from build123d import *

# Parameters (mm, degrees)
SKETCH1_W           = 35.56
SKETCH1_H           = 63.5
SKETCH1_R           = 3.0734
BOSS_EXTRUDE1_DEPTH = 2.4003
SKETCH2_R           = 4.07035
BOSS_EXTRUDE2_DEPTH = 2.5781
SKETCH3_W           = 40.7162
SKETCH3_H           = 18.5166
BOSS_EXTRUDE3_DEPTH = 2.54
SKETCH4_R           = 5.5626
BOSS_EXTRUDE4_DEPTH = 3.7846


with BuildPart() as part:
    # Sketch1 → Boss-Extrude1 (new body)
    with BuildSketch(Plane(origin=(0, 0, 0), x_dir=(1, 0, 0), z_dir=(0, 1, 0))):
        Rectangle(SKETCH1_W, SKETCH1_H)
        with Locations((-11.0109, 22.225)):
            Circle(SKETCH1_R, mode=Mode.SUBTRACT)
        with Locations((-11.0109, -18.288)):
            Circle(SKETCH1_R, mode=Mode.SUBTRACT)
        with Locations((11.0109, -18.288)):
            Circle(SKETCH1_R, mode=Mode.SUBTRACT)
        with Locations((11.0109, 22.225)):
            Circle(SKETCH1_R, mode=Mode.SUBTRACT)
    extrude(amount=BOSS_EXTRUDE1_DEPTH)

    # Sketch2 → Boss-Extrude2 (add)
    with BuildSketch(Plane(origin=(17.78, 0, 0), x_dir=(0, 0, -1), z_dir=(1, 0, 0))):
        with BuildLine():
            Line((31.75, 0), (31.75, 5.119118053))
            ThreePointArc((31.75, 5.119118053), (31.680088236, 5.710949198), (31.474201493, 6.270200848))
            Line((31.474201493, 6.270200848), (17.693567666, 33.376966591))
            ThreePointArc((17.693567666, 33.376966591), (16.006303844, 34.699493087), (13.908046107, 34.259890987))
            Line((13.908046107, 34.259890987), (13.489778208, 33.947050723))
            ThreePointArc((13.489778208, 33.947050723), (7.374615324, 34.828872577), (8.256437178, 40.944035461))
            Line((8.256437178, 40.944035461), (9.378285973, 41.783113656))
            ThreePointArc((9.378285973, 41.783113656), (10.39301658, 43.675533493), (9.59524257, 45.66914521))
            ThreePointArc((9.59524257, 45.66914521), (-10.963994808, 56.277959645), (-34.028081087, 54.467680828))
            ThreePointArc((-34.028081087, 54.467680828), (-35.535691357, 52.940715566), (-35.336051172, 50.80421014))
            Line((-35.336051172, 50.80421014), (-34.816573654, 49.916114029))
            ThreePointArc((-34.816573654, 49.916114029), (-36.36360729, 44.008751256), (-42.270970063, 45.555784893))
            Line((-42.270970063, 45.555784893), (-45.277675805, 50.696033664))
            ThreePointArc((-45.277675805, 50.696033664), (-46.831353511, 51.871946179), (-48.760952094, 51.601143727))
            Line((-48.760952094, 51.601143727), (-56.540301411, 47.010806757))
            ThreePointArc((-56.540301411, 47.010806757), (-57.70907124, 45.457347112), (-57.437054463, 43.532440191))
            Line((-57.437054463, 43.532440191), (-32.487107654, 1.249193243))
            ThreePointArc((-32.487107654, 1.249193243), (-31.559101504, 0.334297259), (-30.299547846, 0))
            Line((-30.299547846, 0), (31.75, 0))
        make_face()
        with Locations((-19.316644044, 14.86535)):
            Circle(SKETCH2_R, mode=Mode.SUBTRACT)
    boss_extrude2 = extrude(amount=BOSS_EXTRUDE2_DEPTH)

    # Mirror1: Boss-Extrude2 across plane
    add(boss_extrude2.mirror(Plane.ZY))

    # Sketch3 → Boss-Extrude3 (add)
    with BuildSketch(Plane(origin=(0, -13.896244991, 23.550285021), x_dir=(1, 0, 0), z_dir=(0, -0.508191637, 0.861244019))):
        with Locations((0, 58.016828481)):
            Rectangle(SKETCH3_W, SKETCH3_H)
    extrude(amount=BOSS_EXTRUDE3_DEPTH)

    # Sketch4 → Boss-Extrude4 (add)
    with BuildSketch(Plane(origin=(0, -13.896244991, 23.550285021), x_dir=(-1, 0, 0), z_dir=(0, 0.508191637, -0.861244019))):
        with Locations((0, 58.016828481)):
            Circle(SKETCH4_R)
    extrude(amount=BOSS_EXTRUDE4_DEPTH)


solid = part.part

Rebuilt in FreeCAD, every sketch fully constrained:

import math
import FreeCAD as App
import Part
import Sketcher

V = App.Vector
Q = App.Units.Quantity


def add_polygon(sketch, points):
    """Adds a closed chain of lines whose ends are joined by coincident constraints."""
    first, n = sketch.GeometryCount, len(points)
    for a, b in zip(points, points[1:] + points[:1]):
        sketch.addGeometry(Part.LineSegment(App.Vector(*a, 0), App.Vector(*b, 0)), False)
    for i in range(n):
        sketch.addConstraint(Sketcher.Constraint("Coincident", first + i, 2, first + (i + 1) % n, 1))

doc = App.newDocument("Part")
params = doc.addObject("Spreadsheet::Sheet", "Params")
for row, (alias, value) in enumerate([
    ("sketch1_diameter", "0.242 in"),
    ("sketch1_width", "1.4 in"),
    ("sketch1_height", "2.5 in"),
    ("pad1_length", "0.0945 in"),
    ("sketch2_radius", "0.1 in"),
    ("sketch2_radius2", "0.1 in"),
    ("sketch2_radius3", "0.1 in"),
    ("sketch2_radius4", "0.1 in"),
    ("sketch2_radius5", "0.1 in"),
    ("pad2_length", "0.1015 in"),
    ("sketch3_width", "1.603 in"),
    ("sketch3_height", "0.729 in"),
    ("pad3_length", "0.1 in"),
    ("sketch4_diameter", "0.438 in"),
    ("pad4_length", "0.149 in"),
], start=1):
    params.set(f"A{row}", alias)
    params.set(f"B{row}", "=" + value)
    params.setAlias(f"B{row}", alias)

body = doc.addObject("PartDesign::Body", "Body")

# Sketch on XZ plane
sketch1 = doc.addObject("Sketcher::SketchObject", "Sketch")
body.addObject(sketch1)
sketch1.AttachmentSupport = (doc.XZ_Plane, [""])
sketch1.MapMode = "FlatFace"
add_polygon(sketch1, [(-17.8, -31.8), (-17.8, 31.8), (17.8, 31.8), (17.8, -31.8)])  # lines 0-3
sketch1.addGeometry(Part.Circle(V(-11, 18.3, 0), V(0, 0, 1), 3.1), False)  # 4
sketch1.addGeometry(Part.Circle(V(11, 18.3, 0), V(0, 0, 1), 3.1), False)  # 5
sketch1.addGeometry(Part.Circle(V(-11, -22.2, 0), V(0, 0, 1), 3.1), False)  # 6
sketch1.addGeometry(Part.Circle(V(11, -22.2, 0), V(0, 0, 1), 3.1), False)  # 7
sketch1.addConstraint([
    Sketcher.Constraint("Vertical", 0),
    Sketcher.Constraint("Horizontal", 1),
    Sketcher.Constraint("Vertical", 2),
    Sketcher.Constraint("Horizontal", 3),
    Sketcher.Constraint("Equal", 4, 5),
    Sketcher.Constraint("Equal", 5, 6),
    Sketcher.Constraint("Equal", 6, 7),
    Sketcher.Constraint("Symmetric", 0, 2, 2, 2, -1, 1),
    Sketcher.Constraint("Symmetric", 4, 3, 5, 3, -2),
    Sketcher.Constraint("Symmetric", 6, 3, 7, 3, -2),
    Sketcher.Constraint("Vertical", 4, 3, 6, 3),
    Sketcher.Constraint("Diameter", 4, Q("0.242 in")),
    Sketcher.Constraint("DistanceX", 1, 1, 1, 2, Q("1.4 in")),
    Sketcher.Constraint("DistanceY", 0, 1, 0, 2, Q("2.5 in")),
    Sketcher.Constraint("DistanceY", -1, 1, 4, 3, Q("0.72 in")),
    Sketcher.Constraint("DistanceY", 6, 3, -1, 1, Q("0.875 in")),
    Sketcher.Constraint("DistanceX", 4, 3, 5, 3, Q("0.867 in")),
])
sketch1.setExpression("Constraints[15]", "Params.sketch1_diameter")
sketch1.setExpression("Constraints[16]", "Params.sketch1_width")
sketch1.setExpression("Constraints[17]", "Params.sketch1_height")
pad1 = doc.addObject("PartDesign::Pad", "Pad")
body.addObject(pad1)
pad1.Profile = sketch1
pad1.setExpression("Length", "Params.pad1_length")
pad1.Reversed = True

# Sketch on YZ plane
sketch2 = doc.addObject("Sketcher::SketchObject", "Sketch001")
body.addObject(sketch2)
sketch2.AttachmentSupport = (doc.YZ_Plane, [""])
sketch2.MapMode = "FlatFace"
sketch2.AttachmentOffset = App.Placement(V(0, 0, 0.7 * 25.4), App.Rotation())
sketch2.addGeometry([
    Part.LineSegment(V(0, -31.75, 0), V(5.119118, -31.75, 0)),  # 0
    Part.ArcOfCircle(Part.Circle(V(5.119118, -29.21, 0), V(0, 0, 1), 2.54), math.radians(-90), math.radians(-63.051965)),  # 1
    Part.LineSegment(V(6.270201, -31.474201, 0), V(33.376967, -17.693568, 0)),  # 2
    Part.ArcOfCircle(Part.Circle(V(32.225884, -15.429366, 0), V(0, 0, 1), 2.54), math.radians(-63.051965), math.radians(36.79437)),  # 3
    Part.LineSegment(V(34.259891, -13.908046, 0), V(33.947051, -13.489778, 0)),  # 4
    Part.ArcOfCircle(Part.Circle(V(37.445543, -10.873108, 0), V(0, 0, 1), 4.3688), math.radians(36.79437), math.radians(216.79437)),  # 5
    Part.LineSegment(V(40.944035, -8.256437, 0), V(41.783114, -9.378286, 0)),  # 6
    Part.ArcOfCircle(Part.Circle(V(43.817121, -7.856966, 0), V(0, 0, 1), 2.54), math.radians(-143.20563), math.radians(-43.185366)),  # 7
    Part.ArcOfCircle(Part.Circle(V(14.86535, 19.316644, 0), V(0, 0, 1), 42.24655), math.radians(-43.185366), math.radians(20.378978)),  # 8
    Part.ArcOfCircle(Part.Circle(V(52.08666, 33.143582, 0), V(0, 0, 1), 2.54), math.radians(20.378978), math.radians(120.324812)),  # 9
    Part.LineSegment(V(50.80421, 35.336051, 0), V(49.916114, 34.816574, 0)),  # 10
    Part.ArcOfCircle(Part.Circle(V(47.735949, 38.543772, 0), V(0, 0, 1), 4.318), math.radians(120.324812), math.radians(300.324812)),  # 11
    Part.LineSegment(V(45.555785, 42.27097, 0), V(50.696034, 45.277676, 0)),  # 12
    Part.ArcOfCircle(Part.Circle(V(49.413584, 47.470145, 0), V(0, 0, 1), 2.54), math.radians(-59.675188), math.radians(30.54345)),  # 13
    Part.LineSegment(V(51.601144, 48.760952, 0), V(47.010807, 56.540301, 0)),  # 14
    Part.ArcOfCircle(Part.Circle(V(44.823247, 55.249495, 0), V(0, 0, 1), 2.54), math.radians(30.54345), math.radians(120.54345)),  # 15
    Part.LineSegment(V(43.53244, 57.437054, 0), V(1.249193, 32.487108, 0)),  # 16
    Part.ArcOfCircle(Part.Circle(V(2.54, 30.299548, 0), V(0, 0, 1), 2.54), math.radians(120.54345), math.radians(180)),  # 17
    Part.LineSegment(V(0, 30.299548, 0), V(0, -31.75, 0)),  # 18
    Part.Circle(V(14.86535, 19.316644, 0), V(0, 0, 1), 4.07035),  # 19
], False)
sketch2.addConstraint([
    Sketcher.Constraint("Coincident", 0, 2, 1, 1),
    Sketcher.Constraint("Coincident", 1, 2, 2, 1),
    Sketcher.Constraint("Coincident", 2, 2, 3, 1),
    Sketcher.Constraint("Coincident", 3, 2, 4, 1),
    Sketcher.Constraint("Coincident", 4, 2, 5, 2),
    Sketcher.Constraint("Coincident", 5, 1, 6, 1),
    Sketcher.Constraint("Coincident", 6, 2, 7, 1),
    Sketcher.Constraint("Coincident", 7, 2, 8, 1),
    Sketcher.Constraint("Coincident", 8, 2, 9, 1),
    Sketcher.Constraint("Coincident", 9, 2, 10, 1),
    Sketcher.Constraint("Coincident", 10, 2, 11, 2),
    Sketcher.Constraint("Coincident", 11, 1, 12, 1),
    Sketcher.Constraint("Coincident", 12, 2, 13, 1),
    Sketcher.Constraint("Coincident", 13, 2, 14, 1),
    Sketcher.Constraint("Coincident", 14, 2, 15, 1),
    Sketcher.Constraint("Coincident", 15, 2, 16, 1),
    Sketcher.Constraint("Coincident", 16, 2, 17, 1),
    Sketcher.Constraint("Coincident", 17, 2, 18, 1),
    Sketcher.Constraint("Coincident", 18, 2, 0, 1),
    Sketcher.Constraint("Horizontal", 0),
    Sketcher.Constraint("Vertical", 18),
    Sketcher.Constraint("Coincident", 19, 3, 8, 3),
    Sketcher.Constraint("PointOnObject", 17, 2, -2),
    Sketcher.Constraint("Radius", 1, Q("0.1 in")),
    Sketcher.Constraint("Radius", 3, Q("0.1 in")),
    Sketcher.Constraint("Radius", 7, Q("0.1 in")),
    Sketcher.Constraint("Radius", 9, Q("0.1 in")),
    Sketcher.Constraint("Radius", 13, Q("0.1 in")),
    Sketcher.Constraint("Radius", 15, Q("0.1 in")),
    Sketcher.Constraint("Radius", 17, Q("0.1 in")),
    Sketcher.Constraint("Radius", 11, Q("0.17 in")),
    Sketcher.Constraint("Radius", 5, Q("0.172 in")),
    Sketcher.Constraint("Diameter", 19, Q("0.3205 in")),
    Sketcher.Constraint("DistanceY", 1, 3, -1, 1, Q("1.15 in")),
    Sketcher.Constraint("Radius", 8, Q("42.24655 mm")),
    Sketcher.Constraint("DistanceX", 0, 1, 0, 2, Q("5.119118 mm")),
    Sketcher.Constraint("DistanceX", -1, 1, 1, 2, Q("6.270201 mm")),
    Sketcher.Constraint("DistanceY", 1, 2, -1, 1, Q("31.474201 mm")),
    Sketcher.Constraint("DistanceY", -1, 1, 14, 2, Q("56.540301 mm")),
    Sketcher.Constraint("DistanceY", 3, 3, 7, 3, Q("7.5724 mm")),
    Sketcher.Constraint("DistanceX", 8, 3, 11, 3, Q("32.870599 mm")),
    Sketcher.Constraint("DistanceY", 8, 3, 13, 3, Q("28.153501 mm")),
    Sketcher.Constraint("DistanceY", 2, 2, 3, 3, Q("2.264201 mm")),
    Sketcher.Constraint("DistanceY", 9, 3, 8, 2, Q("0.884499 mm")),
    Sketcher.Constraint("DistanceY", 10, 2, 11, 3, Q("3.727198 mm")),
    Sketcher.Constraint("DistanceY", 11, 3, 11, 1, Q("3.727198 mm")),
    Sketcher.Constraint("DistanceX", 11, 1, 13, 3, Q("3.857799 mm")),
    Sketcher.Constraint("Distance", 4, Q("0.522319 mm")),
    Sketcher.Constraint("Distance", 10, Q("1.028869 mm")),
    Sketcher.Constraint("Distance", 14, Q("9.032689 mm")),
    Sketcher.Constraint("DistanceY", 18, 2, 18, 1, Q("62.049548 mm")),
    Sketcher.Constraint("DistanceX", -1, 1, 7, 3, Q("43.817121 mm")),
    Sketcher.Constraint("DistanceX", -1, 1, 8, 3, Q("14.86535 mm")),
    Sketcher.Constraint("DistanceX", -1, 1, 9, 3, Q("52.08666 mm")),
    Sketcher.Constraint("DistanceY", -1, 1, 9, 3, Q("33.143582 mm")),
    Sketcher.Constraint("DistanceY", -1, 1, 11, 3, Q("38.543772 mm")),
    Sketcher.Constraint("DistanceX", -1, 1, 3, 2, Q("34.259891 mm")),
    Sketcher.Constraint("DistanceX", -1, 1, 4, 2, Q("33.947051 mm")),
    Sketcher.Constraint("DistanceY", 4, 2, -1, 1, Q("13.489778 mm")),
    Sketcher.Constraint("DistanceX", -1, 1, 15, 2, Q("43.53244 mm")),
    Sketcher.Constraint("DistanceX", 3, 3, 5, 3, Q("5.219659 mm")),
    Sketcher.Constraint("DistanceY", 13, 3, 15, 3, Q("7.779349 mm")),
    Sketcher.Constraint("DistanceY", 5, 1, 7, 3, Q("0.399471 mm")),
    Sketcher.Constraint("DistanceX", 5, 1, 6, 2, Q("0.839078 mm")),
    Sketcher.Constraint("DistanceX", 6, 2, 7, 2, Q("3.886032 mm")),
    Sketcher.Constraint("DistanceX", 13, 3, 12, 2, Q("1.28245 mm")),
    Sketcher.Constraint("DistanceX", 13, 3, 13, 2, Q("2.18756 mm")),
    Sketcher.Constraint("DistanceY", 17, 3, 16, 2, Q("2.18756 mm")),
    Sketcher.Constraint("DistanceY", 17, 2, 16, 2, Q("2.18756 mm")),
])
sketch2.setExpression("Constraints[23]", "Params.sketch2_radius")
sketch2.setExpression("Constraints[24]", "Params.sketch2_radius2")
sketch2.setExpression("Constraints[25]", "Params.sketch2_radius3")
sketch2.setExpression("Constraints[26]", "Params.sketch2_radius4")
sketch2.setExpression("Constraints[27]", "Params.sketch2_radius5")
pad2 = doc.addObject("PartDesign::Pad", "Pad001")
body.addObject(pad2)
pad2.Profile = sketch2
pad2.setExpression("Length", "Params.pad2_length")
doc.recompute()

mirrored = doc.addObject("PartDesign::Mirrored", "Mirrored")
body.addObject(mirrored)
mirrored.Originals = [pad2]
mirrored.MirrorPlane = (doc.YZ_Plane, [""])
body.Tip = mirrored

# Sketch on an angled plane
sketch3 = doc.addObject("Sketcher::SketchObject", "Sketch002")
body.addObject(sketch3)
sketch3.Placement = App.Placement(V(0, -13.896245, 23.550285), App.Rotation(V(1, 0, 0), V(0, 0.861244019, 0.508191637), V(0, -0.508191637, 0.861244019), "ZXY"))
add_polygon(sketch3, [(-20, 67), (-20, 49), (20, 49), (20, 67)])  # lines 0-3
sketch3.addConstraint([
    Sketcher.Constraint("Vertical", 0),
    Sketcher.Constraint("Horizontal", 1),
    Sketcher.Constraint("Vertical", 2),
    Sketcher.Constraint("Horizontal", 3),
    Sketcher.Constraint("DistanceX", 1, 1, 1, 2, Q("1.603 in")),
    Sketcher.Constraint("DistanceY", 0, 2, 0, 1, Q("0.729 in")),
    Sketcher.Constraint("DistanceX", 0, 2, -1, 1, Q("0.8015 in")),
    Sketcher.Constraint("DistanceY", -1, 1, 0, 2, Q("48.758528 mm")),
])
sketch3.setExpression("Constraints[8]", "Params.sketch3_width")
sketch3.setExpression("Constraints[9]", "Params.sketch3_height")
pad3 = doc.addObject("PartDesign::Pad", "Pad002")
body.addObject(pad3)
pad3.Profile = sketch3
pad3.setExpression("Length", "Params.pad3_length")

# Sketch on an angled plane
sketch4 = doc.addObject("Sketcher::SketchObject", "Sketch003")
body.addObject(sketch4)
sketch4.Placement = App.Placement(V(0, -13.896245, 23.550285), App.Rotation(V(-1, 0, 0), V(0, 0.861244019, 0.508191637), V(0, 0.508191637, -0.861244019), "ZXY"))
sketch4.addGeometry(Part.Circle(V(0, 58, 0), V(0, 0, 1), 6), False)
sketch4.addConstraint([
    Sketcher.Constraint("PointOnObject", 0, 3, -2),
    Sketcher.Constraint("Diameter", 0, Q("0.438 in")),
    Sketcher.Constraint("DistanceY", -1, 1, 0, 3, Q("58.016828 mm")),
])
sketch4.setExpression("Constraints[1]", "Params.sketch4_diameter")
pad4 = doc.addObject("PartDesign::Pad", "Pad003")
body.addObject(pad4)
pad4.Profile = sketch4
pad4.setExpression("Length", "Params.pad4_length")

doc.recompute()
